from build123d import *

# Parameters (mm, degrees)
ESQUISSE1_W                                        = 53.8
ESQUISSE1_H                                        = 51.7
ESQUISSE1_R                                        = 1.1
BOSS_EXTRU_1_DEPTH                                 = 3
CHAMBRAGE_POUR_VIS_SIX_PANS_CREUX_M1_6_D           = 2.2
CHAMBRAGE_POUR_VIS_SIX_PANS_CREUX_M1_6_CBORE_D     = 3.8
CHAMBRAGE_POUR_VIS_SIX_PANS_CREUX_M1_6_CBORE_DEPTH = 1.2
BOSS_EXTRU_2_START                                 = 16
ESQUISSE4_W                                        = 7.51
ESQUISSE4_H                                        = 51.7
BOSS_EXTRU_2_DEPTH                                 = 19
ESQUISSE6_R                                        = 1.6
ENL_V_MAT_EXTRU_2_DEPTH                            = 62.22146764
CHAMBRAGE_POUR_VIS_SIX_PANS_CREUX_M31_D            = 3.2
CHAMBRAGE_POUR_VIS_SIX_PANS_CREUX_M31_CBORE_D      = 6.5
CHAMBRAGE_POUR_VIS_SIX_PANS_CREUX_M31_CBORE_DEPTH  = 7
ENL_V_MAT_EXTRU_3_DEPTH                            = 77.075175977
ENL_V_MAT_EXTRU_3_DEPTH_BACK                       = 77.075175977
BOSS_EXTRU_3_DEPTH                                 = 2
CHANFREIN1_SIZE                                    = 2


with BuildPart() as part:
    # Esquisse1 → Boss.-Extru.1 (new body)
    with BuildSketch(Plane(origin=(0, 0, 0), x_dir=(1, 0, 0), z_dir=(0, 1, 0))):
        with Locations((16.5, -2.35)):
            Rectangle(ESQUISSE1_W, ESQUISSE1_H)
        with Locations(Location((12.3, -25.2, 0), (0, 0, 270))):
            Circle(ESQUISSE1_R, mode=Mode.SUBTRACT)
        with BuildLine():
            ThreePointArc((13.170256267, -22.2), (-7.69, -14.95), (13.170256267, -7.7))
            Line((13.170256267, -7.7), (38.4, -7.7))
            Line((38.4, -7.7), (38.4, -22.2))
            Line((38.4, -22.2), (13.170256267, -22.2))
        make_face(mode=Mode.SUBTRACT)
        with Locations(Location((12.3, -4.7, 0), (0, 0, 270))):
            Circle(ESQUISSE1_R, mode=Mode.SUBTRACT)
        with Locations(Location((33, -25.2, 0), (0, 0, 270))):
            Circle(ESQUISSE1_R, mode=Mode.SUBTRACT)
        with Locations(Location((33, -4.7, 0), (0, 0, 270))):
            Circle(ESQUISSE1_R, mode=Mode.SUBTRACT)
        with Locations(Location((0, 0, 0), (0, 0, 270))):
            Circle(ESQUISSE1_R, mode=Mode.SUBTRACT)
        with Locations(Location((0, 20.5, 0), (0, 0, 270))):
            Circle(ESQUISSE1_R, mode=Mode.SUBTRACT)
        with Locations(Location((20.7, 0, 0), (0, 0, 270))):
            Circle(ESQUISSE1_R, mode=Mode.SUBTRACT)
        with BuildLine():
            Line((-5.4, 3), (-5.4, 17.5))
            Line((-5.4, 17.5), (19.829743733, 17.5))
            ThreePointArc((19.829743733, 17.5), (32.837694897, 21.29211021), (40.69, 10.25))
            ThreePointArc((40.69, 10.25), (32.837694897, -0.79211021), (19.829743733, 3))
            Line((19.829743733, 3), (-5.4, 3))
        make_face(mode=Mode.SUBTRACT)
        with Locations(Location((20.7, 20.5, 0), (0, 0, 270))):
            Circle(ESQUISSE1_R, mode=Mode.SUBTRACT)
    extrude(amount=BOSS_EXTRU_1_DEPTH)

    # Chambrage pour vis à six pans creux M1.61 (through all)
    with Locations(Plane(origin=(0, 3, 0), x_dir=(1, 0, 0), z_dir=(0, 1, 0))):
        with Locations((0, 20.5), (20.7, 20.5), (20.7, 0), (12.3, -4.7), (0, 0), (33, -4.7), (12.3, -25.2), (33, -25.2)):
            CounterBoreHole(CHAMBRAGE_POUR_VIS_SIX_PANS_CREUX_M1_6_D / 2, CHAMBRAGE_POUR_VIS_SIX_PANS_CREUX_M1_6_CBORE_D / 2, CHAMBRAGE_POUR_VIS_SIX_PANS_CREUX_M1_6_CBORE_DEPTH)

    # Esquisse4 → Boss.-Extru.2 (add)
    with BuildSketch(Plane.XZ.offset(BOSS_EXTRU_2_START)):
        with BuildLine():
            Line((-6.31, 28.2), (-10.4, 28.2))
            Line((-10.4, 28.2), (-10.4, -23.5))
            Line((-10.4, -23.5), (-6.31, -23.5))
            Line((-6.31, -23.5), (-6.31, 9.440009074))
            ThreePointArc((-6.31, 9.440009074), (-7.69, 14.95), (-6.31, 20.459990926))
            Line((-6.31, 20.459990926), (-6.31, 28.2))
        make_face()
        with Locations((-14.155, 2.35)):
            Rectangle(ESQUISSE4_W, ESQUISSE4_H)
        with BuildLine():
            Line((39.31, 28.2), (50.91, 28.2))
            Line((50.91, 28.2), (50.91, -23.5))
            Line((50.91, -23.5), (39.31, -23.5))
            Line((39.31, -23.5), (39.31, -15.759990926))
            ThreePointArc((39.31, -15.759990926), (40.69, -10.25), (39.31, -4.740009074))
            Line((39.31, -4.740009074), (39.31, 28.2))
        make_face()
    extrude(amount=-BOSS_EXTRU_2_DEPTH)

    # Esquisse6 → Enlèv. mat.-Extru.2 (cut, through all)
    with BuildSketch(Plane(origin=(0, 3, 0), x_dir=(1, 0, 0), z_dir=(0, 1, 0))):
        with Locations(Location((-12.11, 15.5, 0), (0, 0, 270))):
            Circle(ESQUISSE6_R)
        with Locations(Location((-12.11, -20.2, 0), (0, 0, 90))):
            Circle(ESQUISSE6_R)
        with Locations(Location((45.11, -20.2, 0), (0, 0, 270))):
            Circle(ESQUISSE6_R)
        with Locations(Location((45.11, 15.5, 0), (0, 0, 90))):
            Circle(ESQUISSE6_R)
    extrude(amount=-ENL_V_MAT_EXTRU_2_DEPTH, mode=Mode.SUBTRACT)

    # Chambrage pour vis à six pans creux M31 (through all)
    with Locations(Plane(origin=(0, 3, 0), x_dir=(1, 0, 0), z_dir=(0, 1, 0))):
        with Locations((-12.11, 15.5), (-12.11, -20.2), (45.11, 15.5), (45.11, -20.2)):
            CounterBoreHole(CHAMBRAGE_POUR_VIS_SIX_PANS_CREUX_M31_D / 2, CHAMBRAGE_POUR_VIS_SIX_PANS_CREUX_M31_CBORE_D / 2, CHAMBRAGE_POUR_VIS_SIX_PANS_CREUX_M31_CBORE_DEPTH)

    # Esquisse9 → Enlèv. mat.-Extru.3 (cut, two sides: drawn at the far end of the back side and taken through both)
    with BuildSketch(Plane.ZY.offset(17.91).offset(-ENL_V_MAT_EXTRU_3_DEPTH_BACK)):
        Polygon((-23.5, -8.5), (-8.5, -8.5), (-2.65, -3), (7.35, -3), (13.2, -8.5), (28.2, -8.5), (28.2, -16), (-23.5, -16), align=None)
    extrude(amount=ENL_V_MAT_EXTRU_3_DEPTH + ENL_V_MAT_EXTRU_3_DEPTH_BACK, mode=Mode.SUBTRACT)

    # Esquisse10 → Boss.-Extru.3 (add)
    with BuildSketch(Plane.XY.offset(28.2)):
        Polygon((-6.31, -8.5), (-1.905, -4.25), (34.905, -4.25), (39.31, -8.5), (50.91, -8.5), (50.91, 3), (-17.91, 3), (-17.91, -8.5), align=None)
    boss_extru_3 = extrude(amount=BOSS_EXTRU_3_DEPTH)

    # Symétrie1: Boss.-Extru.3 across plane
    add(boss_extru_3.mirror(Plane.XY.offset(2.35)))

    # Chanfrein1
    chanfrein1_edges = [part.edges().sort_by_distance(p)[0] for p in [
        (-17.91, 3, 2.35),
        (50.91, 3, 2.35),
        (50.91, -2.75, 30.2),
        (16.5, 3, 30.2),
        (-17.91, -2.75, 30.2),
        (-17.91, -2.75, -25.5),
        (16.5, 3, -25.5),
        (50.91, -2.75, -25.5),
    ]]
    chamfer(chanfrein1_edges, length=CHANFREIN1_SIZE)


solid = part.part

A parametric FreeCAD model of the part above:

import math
import FreeCAD as App
import Part
import Sketcher
from FreeCAD import Vector
Q = App.Units.Quantity


def edges_at(feature, points):
    """Names of the edges that pass closest to the given points."""
    edges = feature.Shape.Edges
    near = lambda p: min(range(len(edges)), key=lambda i: edges[i].distToShape(Part.Vertex(*p))[0])
    return sorted({f"Edge{near(p) + 1}" for p in points})


def add_polygon(sketch, points):
    """Adds a closed chain of lines whose ends are joined by coincident constraints."""
    first, n = sketch.GeometryCount, len(points)
    for a, b in zip(points, points[1:] + points[:1]):
        sketch.addGeometry(Part.LineSegment(App.Vector(*a, 0), App.Vector(*b, 0)), False)
    for i in range(n):
        sketch.addConstraint(Sketcher.Constraint("Coincident", first + i, 2, first + (i + 1) % n, 1))

doc = App.newDocument("Part")
body = doc.addObject("PartDesign::Body", "Body")

# Sketch on XZ plane
sketch1 = body.newObject("Sketcher::SketchObject", "Sketch")
sketch1.AttachmentSupport = (doc.getObject("XZ_Plane"), [""])
sketch1.MapMode = "FlatFace"
add_polygon(sketch1, [(-10.4, -23.5), (-10.4, 28.2), (43.4, 28.2), (43.4, -23.5)])  # lines 0-3
sketch1.addGeometry(Part.Circle(Vector(12.3, 25.2, 0), Vector(0, 0, 1), 1.1), False)  # 4
sketch1.addGeometry(Part.LineSegment(Vector(38.4, 22.2, 0), Vector(13.2, 22.2, 0)), False)  # 5
sketch1.addGeometry(Part.ArcOfCircle(Part.Circle(Vector(4, 14.9, 0), Vector(0, 0, 1), 11.7), math.radians(38), math.radians(322)), False)  # 6
sketch1.addGeometry(Part.LineSegment(Vector(13.2, 7.7, 0), Vector(38.4, 7.7, 0)), False)  # 7
sketch1.addGeometry(Part.LineSegment(Vector(38.4, 7.7, 0), Vector(38.4, 22.2, 0)), False)  # 8
sketch1.addGeometry(Part.Circle(Vector(12.3, 4.7, 0), Vector(0, 0, 1), 1.1), False)  # 9
sketch1.addGeometry(Part.Circle(Vector(33, 25.2, 0), Vector(0, 0, 1), 1.1), False)  # 10
sketch1.addGeometry(Part.Circle(Vector(33, 4.7, 0), Vector(0, 0, 1), 1.1), False)  # 11
sketch1.addGeometry(Part.Circle(Vector(0, 0, 0), Vector(0, 0, 1), 1.1), False)  # 12
sketch1.addGeometry(Part.Circle(Vector(0, -20.5, 0), Vector(0, 0, 1), 1.1), False)  # 13
sketch1.addGeometry(Part.Circle(Vector(20.7, 0, 0), Vector(0, 0, 1), 1.1), False)  # 14
sketch1.addGeometry(Part.LineSegment(Vector(19.8, -3, 0), Vector(-5.4, -3, 0)), False)  # 15
sketch1.addGeometry(Part.LineSegment(Vector(-5.4, -3, 0), Vector(-5.4, -17.5, 0)), False)  # 16
sketch1.addGeometry(Part.LineSegment(Vector(-5.4, -17.5, 0), Vector(19.8, -17.5, 0)), False)  # 17
sketch1.addGeometry(Part.ArcOfCircle(Part.Circle(Vector(29, -10.3, 0), Vector(0, 0, 1), 11.7), math.radians(-142), math.radians(0)), False)  # 18
sketch1.addGeometry(Part.ArcOfCircle(Part.Circle(Vector(29, -10.2, 0), Vector(0, 0, 1), 11.7), math.radians(0), math.radians(142)), False)  # 19
sketch1.addGeometry(Part.Circle(Vector(20.7, -20.5, 0), Vector(0, 0, 1), 1.1), False)  # 20
sketch1.addConstraint([
    Sketcher.Constraint("Coincident", 5, 2, 6, 1),
    Sketcher.Constraint("Coincident", 6, 2, 7, 1),
    Sketcher.Constraint("Coincident", 7, 2, 8, 1),
    Sketcher.Constraint("Coincident", 8, 2, 5, 1),
    Sketcher.Constraint("Coincident", 15, 2, 16, 1),
    Sketcher.Constraint("Coincident", 16, 2, 17, 1),
    Sketcher.Constraint("Coincident", 17, 2, 18, 1),
    Sketcher.Constraint("Tangent", 18, 2, 19, 1),
    Sketcher.Constraint("Coincident", 19, 2, 15, 1),
    Sketcher.Constraint("Vertical", 0),
    Sketcher.Constraint("Horizontal", 1),
    Sketcher.Constraint("Vertical", 2),
    Sketcher.Constraint("Horizontal", 3),
    Sketcher.Constraint("Horizontal", 5),
    Sketcher.Constraint("Horizontal", 7),
    Sketcher.Constraint("Vertical", 8),
    Sketcher.Constraint("Horizontal", 15),
    Sketcher.Constraint("Vertical", 16),
    Sketcher.Constraint("Horizontal", 17),
    Sketcher.Constraint("Coincident", 12, 3, -1, 1),
    Sketcher.Constraint("Equal", 4, 9),
    Sketcher.Constraint("Equal", 9, 10),
    Sketcher.Constraint("Equal", 10, 11),
    Sketcher.Constraint("Equal", 11, 12),
    Sketcher.Constraint("Equal", 12, 13),
    Sketcher.Constraint("Equal", 13, 14),
    Sketcher.Constraint("Equal", 6, 18),
    Sketcher.Constraint("Equal", 18, 19),
    Sketcher.Constraint("Equal", 14, 20),
    Sketcher.Constraint("PointOnObject", 13, 3, -2),
    Sketcher.Constraint("PointOnObject", 14, 3, -1),
    Sketcher.Constraint("Horizontal", 4, 3, 10, 3),
    Sketcher.Constraint("Horizontal", 9, 3, 11, 3),
    Sketcher.Constraint("Horizontal", 13, 3, 20, 3),
    Sketcher.Constraint("Horizontal", 19, 3, 18, 2),
    Sketcher.Constraint("Vertical", 4, 3, 9, 3),
    Sketcher.Constraint("Vertical", 10, 3, 11, 3),
    Sketcher.Constraint("Vertical", 14, 3, 20, 3),
    Sketcher.Constraint("Vertical", 5, 2, 6, 2),
    Sketcher.Constraint("Vertical", 17, 2, 19, 2),
    Sketcher.Constraint("Equal", 7, 15),
    Sketcher.Constraint("Equal", 8, 16),
    Sketcher.Constraint("Diameter", 4, Q("2.2 mm")),
    Sketcher.Constraint("Radius", 6, Q("11.69 mm")),
    Sketcher.Constraint("DistanceX", 1, 1, 1, 2, Q("53.8 mm")),
    Sketcher.Constraint("DistanceY", 0, 1, 0, 2, Q("51.7 mm")),
    Sketcher.Constraint("DistanceY", 8, 1, 8, 2, Q("14.5 mm")),
    Sketcher.Constraint("DistanceX", -1, 1, 6, 3, Q("4 mm")),
    Sketcher.Constraint("DistanceX", -1, 1, 10, 3, Q("33 mm")),
    Sketcher.Constraint("DistanceX", -1, 1, 18, 3, Q("29 mm")),
    Sketcher.Constraint("DistanceY", 15, 2, -1, 1, Q("3 mm")),
    Sketcher.Constraint("DistanceY", 4, 3, 0, 2, Q("3 mm")),
    Sketcher.Constraint("DistanceY", 2, 2, 20, 3, Q("3 mm")),
    Sketcher.Constraint("DistanceY", 5, 2, 4, 3, Q("3 mm")),
    Sketcher.Constraint("DistanceY", 9, 3, 6, 2, Q("3 mm")),
    Sketcher.Constraint("DistanceX", 8, 2, 1, 2, Q("5 mm")),
    Sketcher.Constraint("DistanceX", 3, 2, 15, 2, Q("5 mm")),
    Sketcher.Constraint("DistanceY", 13, 3, 16, 2, Q("3 mm")),
    Sketcher.Constraint("DistanceX", -1, 1, 4, 3, Q("12.3 mm")),
    Sketcher.Constraint("DistanceX", -1, 1, 14, 3, Q("20.7 mm")),
])
pad1 = body.newObject("PartDesign::Pad", "Pad")
pad1.Profile = sketch1
pad1.Length = 3
pad1.Reversed = True

# Sketch on XZ plane
sketch2 = body.newObject("Sketcher::SketchObject", "Sketch001")
sketch2.AttachmentSupport = (doc.getObject("XZ_Plane"), [""])
sketch2.MapMode = "FlatFace"
sketch2.AttachmentOffset = App.Placement(Vector(0, 0, -3), App.Rotation())
sketch2.addGeometry([
    Part.Circle(Vector(0, -20.5, 0), Vector(0, 0, 1), 1.1),  # 0
    Part.Circle(Vector(20.7, -20.5, 0), Vector(0, 0, 1), 1.1),  # 1
    Part.Circle(Vector(20.7, 0, 0), Vector(0, 0, 1), 1.1),  # 2
    Part.Circle(Vector(12.3, 4.7, 0), Vector(0, 0, 1), 1.1),  # 3
    Part.Circle(Vector(0, 0, 0), Vector(0, 0, 1), 1.1),  # 4
    Part.Circle(Vector(33, 4.7, 0), Vector(0, 0, 1), 1.1),  # 5
    Part.Circle(Vector(12.3, 25.2, 0), Vector(0, 0, 1), 1.1),  # 6
    Part.Circle(Vector(33, 25.2, 0), Vector(0, 0, 1), 1.1),  # 7
], False)
sketch2.addConstraint([
    Sketcher.Constraint("Coincident", 4, 3, -1, 1),
    Sketcher.Constraint("Equal", 0, 1),
    Sketcher.Constraint("Equal", 1, 2),
    Sketcher.Constraint("Equal", 2, 3),
    Sketcher.Constraint("Equal", 3, 4),
    Sketcher.Constraint("Equal", 4, 5),
    Sketcher.Constraint("Equal", 5, 6),
    Sketcher.Constraint("Equal", 6, 7),
    Sketcher.Constraint("PointOnObject", 0, 3, -2),
    Sketcher.Constraint("PointOnObject", 2, 3, -1),
    Sketcher.Constraint("Horizontal", 0, 3, 1, 3),
    Sketcher.Constraint("Horizontal", 3, 3, 5, 3),
    Sketcher.Constraint("Horizontal", 6, 3, 7, 3),
    Sketcher.Constraint("Vertical", 1, 3, 2, 3),
    Sketcher.Constraint("Vertical", 3, 3, 6, 3),
    Sketcher.Constraint("Vertical", 5, 3, 7, 3),
    Sketcher.Constraint("Diameter", 0, Q("2.2 mm")),
    Sketcher.Constraint("DistanceX", -1, 1, 5, 3, Q("33 mm")),
    Sketcher.Constraint("DistanceY", 0, 3, -1, 1, Q("20.5 mm")),
    Sketcher.Constraint("DistanceX", -1, 1, 1, 3, Q("20.7 mm")),
    Sketcher.Constraint("DistanceX", -1, 1, 3, 3, Q("12.3 mm")),
    Sketcher.Constraint("DistanceY", -1, 1, 3, 3, Q("4.7 mm")),
    Sketcher.Constraint("DistanceY", -1, 1, 6, 3, Q("25.2 mm")),
])
doc.recompute()
hole = body.newObject("PartDesign::Hole", "Hole")
hole.Profile = sketch2
hole.ThreadType = "None"
hole.Diameter = 2.2
hole.DepthType = "ThroughAll"
hole.HoleCutType = "Counterbore"
hole.HoleCutDiameter = 3.8
hole.HoleCutDepth = 1.2
hole.Reversed = True

# Sketch on XZ plane
sketch3 = body.newObject("Sketcher::SketchObject", "Sketch002")
sketch3.AttachmentSupport = (doc.getObject("XZ_Plane"), [""])
sketch3.MapMode = "FlatFace"
sketch3.AttachmentOffset = App.Placement(Vector(0, 0, 16), App.Rotation())
sketch3.addGeometry([
    Part.LineSegment(Vector(-6, 28, 0), Vector(-18, 28, 0)),  # 0
    Part.LineSegment(Vector(-18, 28, 0), Vector(-18, -24, 0)),  # 1
    Part.LineSegment(Vector(-18, -24, 0), Vector(-6, -24, 0)),  # 2
    Part.LineSegment(Vector(-6, -24, 0), Vector(-6, 9, 0)),  # 3
    Part.ArcOfCircle(Part.Circle(Vector(4, 15, 0), Vector(0, 0, 1), 12), math.radians(152), math.radians(208)),  # 4
    Part.LineSegment(Vector(-6, 20, 0), Vector(-6, 28, 0)),  # 5
    Part.LineSegment(Vector(51, 28, 0), Vector(39, 28, 0)),  # 6
    Part.LineSegment(Vector(39, 28, 0), Vector(39, -5, 0)),  # 7
    Part.ArcOfCircle(Part.Circle(Vector(29, -10, 0), Vector(0, 0, 1), 12), math.radians(-28), math.radians(28)),  # 8
    Part.LineSegment(Vector(39, -16, 0), Vector(39, -24, 0)),  # 9
    Part.LineSegment(Vector(39, -24, 0), Vector(51, -24, 0)),  # 10
    Part.LineSegment(Vector(51, -24, 0), Vector(51, 28, 0)),  # 11
], False)
sketch3.addConstraint([
    Sketcher.Constraint("Coincident", 0, 2, 1, 1),
    Sketcher.Constraint("Coincident", 1, 2, 2, 1),
    Sketcher.Constraint("Coincident", 2, 2, 3, 1),
    Sketcher.Constraint("Coincident", 3, 2, 4, 2),
    Sketcher.Constraint("Coincident", 4, 1, 5, 1),
    Sketcher.Constraint("Coincident", 5, 2, 0, 1),
    Sketcher.Constraint("Coincident", 6, 2, 7, 1),
    Sketcher.Constraint("Coincident", 7, 2, 8, 2),
    Sketcher.Constraint("Coincident", 8, 1, 9, 1),
    Sketcher.Constraint("Coincident", 9, 2, 10, 1),
    Sketcher.Constraint("Coincident", 10, 2, 11, 1),
    Sketcher.Constraint("Coincident", 11, 2, 6, 1),
    Sketcher.Constraint("Horizontal", 0),
    Sketcher.Constraint("Vertical", 1),
    Sketcher.Constraint("Horizontal", 2),
    Sketcher.Constraint("Vertical", 3),
    Sketcher.Constraint("Vertical", 5),
    Sketcher.Constraint("Horizontal", 6),
    Sketcher.Constraint("Vertical", 7),
    Sketcher.Constraint("Vertical", 9),
    Sketcher.Constraint("Horizontal", 10),
    Sketcher.Constraint("Vertical", 11),
    Sketcher.Constraint("Equal", 4, 8),
    Sketcher.Constraint("Horizontal", 5, 2, 6, 2),
    Sketcher.Constraint("Horizontal", 2, 2, 9, 2),
    Sketcher.Constraint("Vertical", 3, 2, 4, 1),
    Sketcher.Constraint("Vertical", 7, 2, 8, 1),
    Sketcher.Constraint("Equal", 2, 6),
    Sketcher.Constraint("Equal", 3, 7),
    Sketcher.Constraint("Equal", 5, 9),
    Sketcher.Constraint("Radius", 4, Q("11.69 mm")),
    Sketcher.Constraint("DistanceX", 0, 2, 0, 1, Q("11.6 mm")),
    Sketcher.Constraint("DistanceY", 1, 2, 1, 1, Q("51.7 mm")),
    Sketcher.Constraint("DistanceX", -1, 1, 4, 3, Q("4 mm")),
    Sketcher.Constraint("DistanceX", -1, 1, 8, 3, Q("29 mm")),
    Sketcher.Constraint("DistanceY", -1, 1, 0, 2, Q("28.2 mm")),
    Sketcher.Constraint("DistanceY", 8, 3, 4, 3, Q("25.2 mm")),
    Sketcher.Constraint("DistanceX", 0, 2, -1, 1, Q("17.91 mm")),
])
pad2 = body.newObject("PartDesign::Pad", "Pad001")
pad2.Profile = sketch3
pad2.Length = 19
pad2.Reversed = True

# Sketch on XZ plane
sketch4 = body.newObject("Sketcher::SketchObject", "Sketch003")
sketch4.AttachmentSupport = (doc.getObject("XZ_Plane"), [""])
sketch4.MapMode = "FlatFace"
sketch4.AttachmentOffset = App.Placement(Vector(0, 0, -3), App.Rotation())
sketch4.addGeometry([
    Part.Circle(Vector(-12.1, -15.5, 0), Vector(0, 0, 1), 1.6),
    Part.Circle(Vector(-12.1, 20.2, 0), Vector(0, 0, 1), 1.6),
    Part.Circle(Vector(45.1, 20.2, 0), Vector(0, 0, 1), 1.6),
    Part.Circle(Vector(45.1, -15.5, 0), Vector(0, 0, 1), 1.6),
], False)
sketch4.addConstraint([
    Sketcher.Constraint("Equal", 0, 1),
    Sketcher.Constraint("Equal", 1, 2),
    Sketcher.Constraint("Equal", 2, 3),
    Sketcher.Constraint("Horizontal", 1, 3, 2, 3),
    Sketcher.Constraint("Horizontal", 0, 3, 3, 3),
    Sketcher.Constraint("Vertical", 0, 3, 1, 3),
    Sketcher.Constraint("Vertical", 2, 3, 3, 3),
    Sketcher.Constraint("Diameter", 0, Q("3.2 mm")),
    Sketcher.Constraint("DistanceY", 0, 3, -1, 1, Q("15.5 mm")),
    Sketcher.Constraint("DistanceY", -1, 1, 1, 3, Q("20.2 mm")),
    Sketcher.Constraint("DistanceX", 0, 3, -1, 1, Q("12.11 mm")),
    Sketcher.Constraint("DistanceX", -1, 1, 2, 3, Q("45.11 mm")),
])
pocket1 = body.newObject("PartDesign::Pocket", "Pocket")
pocket1.Profile = sketch4
pocket1.Type = "ThroughAll"
pocket1.Reversed = True

# Sketch on XZ plane
sketch5 = body.newObject("Sketcher::SketchObject", "Sketch004")
sketch5.AttachmentSupport = (doc.getObject("XZ_Plane"), [""])
sketch5.MapMode = "FlatFace"
sketch5.AttachmentOffset = App.Placement(Vector(0, 0, -3), App.Rotation())
sketch5.addGeometry([
    Part.Circle(Vector(-12.1, -15.5, 0), Vector(0, 0, 1), 1.6),
    Part.Circle(Vector(-12.1, 20.2, 0), Vector(0, 0, 1), 1.6),
    Part.Circle(Vector(45.1, -15.5, 0), Vector(0, 0, 1), 1.6),
    Part.Circle(Vector(45.1, 20.2, 0), Vector(0, 0, 1), 1.6),
], False)
sketch5.addConstraint([
    Sketcher.Constraint("Equal", 0, 1),
    Sketcher.Constraint("Equal", 1, 2),
    Sketcher.Constraint("Equal", 2, 3),
    Sketcher.Constraint("Horizontal", 0, 3, 2, 3),
    Sketcher.Constraint("Horizontal", 1, 3, 3, 3),
    Sketcher.Constraint("Vertical", 0, 3, 1, 3),
    Sketcher.Constraint("Vertical", 2, 3, 3, 3),
    Sketcher.Constraint("Diameter", 0, Q("3.2 mm")),
    Sketcher.Constraint("DistanceY", 0, 3, -1, 1, Q("15.5 mm")),
    Sketcher.Constraint("DistanceY", -1, 1, 1, 3, Q("20.2 mm")),
    Sketcher.Constraint("DistanceX", 0, 3, -1, 1, Q("12.11 mm")),
    Sketcher.Constraint("DistanceX", -1, 1, 2, 3, Q("45.11 mm")),
])
doc.recompute()
hole2 = body.newObject("PartDesign::Hole", "Hole001")
hole2.Profile = sketch5
hole2.ThreadType = "None"
hole2.Diameter = 3.2
hole2.DepthType = "ThroughAll"
hole2.HoleCutType = "Counterbore"
hole2.HoleCutDiameter = 6.5
hole2.HoleCutDepth = 7
hole2.Reversed = True

# Sketch on YZ plane
sketch6 = body.newObject("Sketcher::SketchObject", "Sketch005")
sketch6.AttachmentSupport = (doc.getObject("YZ_Plane"), [""])
sketch6.MapMode = "FlatFace"
sketch6.AttachmentOffset = App.Placement(Vector(0, 0, -17.91), App.Rotation())
add_polygon(sketch6, [(-8, -8), (-8, -24), (-16, -24), (-16, 28), (-8, 28), (-8, 13), (-3, 7), (-3, -3)])  # lines 0-7
sketch6.addConstraint([
    Sketcher.Constraint("Vertical", 0),
    Sketcher.Constraint("Horizontal", 1),
    Sketcher.Constraint("Vertical", 2),
    Sketcher.Constraint("Horizontal", 3),
    Sketcher.Constraint("Vertical", 4),
    Sketcher.Constraint("Vertical", 6),
    Sketcher.Constraint("Vertical", 0, 2, 3, 2),
    Sketcher.Constraint("Equal", 0, 4),
    Sketcher.Constraint("Equal", 5, 7),
    Sketcher.Constraint("DistanceY", 0, 2, 0, 1, Q("15 mm")),
    Sketcher.Constraint("DistanceY", 6, 2, 6, 1, Q("10 mm")),
    Sketcher.Constraint("DistanceX", 1, 2, 1, 1, Q("7.5 mm")),
    Sketcher.Constraint("DistanceY", 2, 1, 2, 2, Q("51.7 mm")),
    Sketcher.Constraint("DistanceX", 1, 2, -1, 1, Q("16 mm")),
    Sketcher.Constraint("DistanceX", 5, 2, -1, 1, Q("3 mm")),
    Sketcher.Constraint("DistanceY", 0, 2, -1, 1, Q("23.5 mm")),
])
pocket2 = body.newObject("PartDesign::Pocket", "Pocket001")
pocket2.Profile = sketch6
pocket2.Type = "ThroughAll"
pocket2.Midplane = True

# Sketch on XY plane
sketch7 = body.newObject("Sketcher::SketchObject", "Sketch006")
sketch7.AttachmentSupport = (doc.getObject("XY_Plane"), [""])
sketch7.MapMode = "FlatFace"
sketch7.AttachmentOffset = App.Placement(Vector(0, 0, 28.2), App.Rotation())
add_polygon(sketch7, [(-6, -8), (-2, -4), (35, -4), (39, -8), (51, -8), (51, 3), (-18, 3), (-18, -8)])  # lines 0-7
sketch7.addConstraint([
    Sketcher.Constraint("Horizontal", 1),
    Sketcher.Constraint("Horizontal", 3),
    Sketcher.Constraint("Vertical", 4),
    Sketcher.Constraint("Horizontal", 5),
    Sketcher.Constraint("Vertical", 6),
    Sketcher.Constraint("Horizontal", 7),
    Sketcher.Constraint("Horizontal", 3, 2, 6, 2),
    Sketcher.Constraint("Equal", 3, 7),
    Sketcher.Constraint("Equal", 0, 2),
    Sketcher.Constraint("DistanceX", 3, 1, 3, 2, Q("11.6 mm")),
    Sketcher.Constraint("DistanceY", 4, 1, 4, 2, Q("11.5 mm")),
    Sketcher.Constraint("DistanceY", -1, 1, 4, 2, Q("3 mm")),
    Sketcher.Constraint("DistanceX", 1, 1, 1, 2, Q("36.81 mm")),
    Sketcher.Constraint("DistanceX", 5, 2, 5, 1, Q("68.82 mm")),
    Sketcher.Constraint("DistanceY", 0, 2, -1, 1, Q("4.25 mm")),
    Sketcher.Constraint("DistanceX", -1, 1, 2, 2, Q("39.31 mm")),
])
pad3 = body.newObject("PartDesign::Pad", "Pad002")
pad3.Profile = sketch7
pad3.Length = 2
doc.recompute()

datumplane = body.newObject("PartDesign::Plane", "DatumPlane")
datumplane.AttachmentSupport = (doc.getObject("XY_Plane"), [""])
datumplane.MapMode = "FlatFace"
datumplane.AttachmentOffset = App.Placement(Vector(0, 0, 2.35), App.Rotation())
mirrored = body.newObject("PartDesign::Mirrored", "Mirrored")
mirrored.Originals = [pad3]
mirrored.MirrorPlane = (datumplane, [""])
body.Tip = mirrored
doc.recompute()

chamfer = body.newObject("PartDesign::Chamfer", "Chamfer")
chamfer.Base = (mirrored, edges_at(mirrored, [
    (-17.91, 3, 2.35),
    (50.91, 3, 2.35),
    (50.91, -2.75, 30.2),
    (16.5, 3, 30.2),
    (-17.91, -2.75, 30.2),
    (-17.91, -2.75, -25.5),
    (16.5, 3, -25.5),
    (50.91, -2.75, -25.5),
]))
chamfer.Size = 2

doc.recompute()
